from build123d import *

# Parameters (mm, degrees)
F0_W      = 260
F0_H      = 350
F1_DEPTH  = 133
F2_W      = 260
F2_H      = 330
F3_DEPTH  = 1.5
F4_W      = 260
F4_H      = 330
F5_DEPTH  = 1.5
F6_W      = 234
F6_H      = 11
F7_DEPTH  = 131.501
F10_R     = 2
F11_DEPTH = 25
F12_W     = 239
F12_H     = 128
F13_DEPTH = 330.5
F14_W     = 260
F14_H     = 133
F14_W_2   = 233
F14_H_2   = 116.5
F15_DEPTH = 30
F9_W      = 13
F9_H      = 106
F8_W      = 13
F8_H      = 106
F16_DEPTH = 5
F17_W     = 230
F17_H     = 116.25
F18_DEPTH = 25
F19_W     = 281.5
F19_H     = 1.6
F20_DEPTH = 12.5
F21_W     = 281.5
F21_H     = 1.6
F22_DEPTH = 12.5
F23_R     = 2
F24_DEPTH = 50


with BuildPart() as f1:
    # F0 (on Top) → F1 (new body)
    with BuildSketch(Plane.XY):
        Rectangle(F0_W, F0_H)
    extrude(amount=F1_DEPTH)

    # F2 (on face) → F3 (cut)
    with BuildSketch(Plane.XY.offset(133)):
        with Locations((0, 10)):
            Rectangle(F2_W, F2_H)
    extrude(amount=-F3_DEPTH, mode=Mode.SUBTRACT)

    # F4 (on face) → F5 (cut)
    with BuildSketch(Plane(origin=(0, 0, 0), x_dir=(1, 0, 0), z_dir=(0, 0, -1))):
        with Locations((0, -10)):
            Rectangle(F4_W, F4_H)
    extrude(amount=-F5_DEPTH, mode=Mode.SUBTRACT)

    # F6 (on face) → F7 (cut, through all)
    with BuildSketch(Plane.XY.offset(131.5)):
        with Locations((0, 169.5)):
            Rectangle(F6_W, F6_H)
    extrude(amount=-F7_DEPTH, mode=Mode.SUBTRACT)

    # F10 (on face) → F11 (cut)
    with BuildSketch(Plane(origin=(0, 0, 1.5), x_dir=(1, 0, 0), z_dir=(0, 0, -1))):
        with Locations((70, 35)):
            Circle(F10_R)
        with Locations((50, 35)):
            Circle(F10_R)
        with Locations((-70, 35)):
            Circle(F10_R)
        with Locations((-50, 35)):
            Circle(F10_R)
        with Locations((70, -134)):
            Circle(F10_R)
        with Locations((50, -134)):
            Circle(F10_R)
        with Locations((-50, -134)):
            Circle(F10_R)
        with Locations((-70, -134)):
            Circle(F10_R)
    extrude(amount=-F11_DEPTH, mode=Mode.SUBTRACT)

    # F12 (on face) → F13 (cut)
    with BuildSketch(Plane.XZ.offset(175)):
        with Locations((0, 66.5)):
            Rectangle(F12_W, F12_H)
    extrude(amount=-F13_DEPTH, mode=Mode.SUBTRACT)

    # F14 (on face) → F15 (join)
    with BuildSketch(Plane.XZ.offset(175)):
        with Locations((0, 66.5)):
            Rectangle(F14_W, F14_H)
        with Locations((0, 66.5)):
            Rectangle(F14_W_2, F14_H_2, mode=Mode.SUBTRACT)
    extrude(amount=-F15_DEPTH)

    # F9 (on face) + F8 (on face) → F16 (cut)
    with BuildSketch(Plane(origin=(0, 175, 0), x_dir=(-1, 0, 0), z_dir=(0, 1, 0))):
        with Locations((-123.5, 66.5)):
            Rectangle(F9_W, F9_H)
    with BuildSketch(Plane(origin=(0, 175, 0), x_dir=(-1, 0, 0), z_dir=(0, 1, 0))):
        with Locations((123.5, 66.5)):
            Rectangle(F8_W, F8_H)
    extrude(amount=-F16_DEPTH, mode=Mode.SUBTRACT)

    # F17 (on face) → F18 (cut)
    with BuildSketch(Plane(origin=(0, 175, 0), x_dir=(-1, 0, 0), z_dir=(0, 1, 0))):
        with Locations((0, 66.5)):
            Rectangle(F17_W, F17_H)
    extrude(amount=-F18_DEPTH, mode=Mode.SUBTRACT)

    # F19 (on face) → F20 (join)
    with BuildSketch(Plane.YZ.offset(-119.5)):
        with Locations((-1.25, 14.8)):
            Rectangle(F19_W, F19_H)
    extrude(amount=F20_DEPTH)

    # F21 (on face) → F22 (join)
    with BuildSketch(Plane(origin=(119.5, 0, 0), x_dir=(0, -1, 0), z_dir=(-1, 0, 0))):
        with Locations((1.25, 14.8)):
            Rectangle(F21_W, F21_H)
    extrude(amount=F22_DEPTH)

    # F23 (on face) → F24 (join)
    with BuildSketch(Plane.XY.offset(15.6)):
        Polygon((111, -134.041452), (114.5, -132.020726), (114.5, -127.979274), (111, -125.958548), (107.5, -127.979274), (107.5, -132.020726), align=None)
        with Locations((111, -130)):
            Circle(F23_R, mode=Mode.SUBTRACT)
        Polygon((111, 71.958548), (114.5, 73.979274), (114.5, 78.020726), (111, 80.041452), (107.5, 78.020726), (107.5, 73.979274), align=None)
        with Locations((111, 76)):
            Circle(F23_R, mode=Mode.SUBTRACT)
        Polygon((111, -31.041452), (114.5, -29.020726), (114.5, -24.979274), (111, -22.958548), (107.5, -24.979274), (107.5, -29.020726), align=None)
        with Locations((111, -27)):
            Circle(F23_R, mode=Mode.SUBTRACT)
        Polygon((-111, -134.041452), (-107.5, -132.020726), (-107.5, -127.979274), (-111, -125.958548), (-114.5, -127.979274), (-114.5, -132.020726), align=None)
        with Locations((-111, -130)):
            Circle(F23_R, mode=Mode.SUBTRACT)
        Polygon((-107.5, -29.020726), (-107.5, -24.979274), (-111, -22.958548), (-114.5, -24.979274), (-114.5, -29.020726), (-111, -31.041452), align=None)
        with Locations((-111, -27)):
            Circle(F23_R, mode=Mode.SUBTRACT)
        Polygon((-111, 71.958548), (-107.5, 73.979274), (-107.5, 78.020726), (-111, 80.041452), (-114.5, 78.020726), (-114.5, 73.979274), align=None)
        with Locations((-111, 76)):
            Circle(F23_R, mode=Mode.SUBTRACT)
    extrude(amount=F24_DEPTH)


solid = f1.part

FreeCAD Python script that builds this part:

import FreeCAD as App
import Part
import Sketcher
Q = App.Units.Quantity


def add_polygon(sketch, points):
    """Adds a closed chain of lines whose ends are joined by coincident constraints."""
    first, n = sketch.GeometryCount, len(points)
    for a, b in zip(points, points[1:] + points[:1]):
        sketch.addGeometry(Part.LineSegment(App.Vector(*a, 0), App.Vector(*b, 0)), False)
    for i in range(n):
        sketch.addConstraint(Sketcher.Constraint("Coincident", first + i, 2, first + (i + 1) % n, 1))

doc = App.newDocument("Part")
body = doc.addObject("PartDesign::Body", "Body")

sketch1 = body.newObject("Sketcher::SketchObject", "Sketch")
sketch1.AttachmentSupport = (doc.getObject("XY_Plane"), [""])
sketch1.MapMode = "FlatFace"
add_polygon(sketch1, [(-130, 175), (-130, -175), (130, -175), (130, 175)])
sketch1.addConstraint([
    Sketcher.Constraint("Vertical", 0),
    Sketcher.Constraint("Horizontal", 1),
    Sketcher.Constraint("Vertical", 2),
    Sketcher.Constraint("Horizontal", 3),
    Sketcher.Constraint("Symmetric", 0, 2, 2, 2, -1, 1),
    Sketcher.Constraint("DistanceX", 1, 1, 1, 2, Q("260 mm")),
    Sketcher.Constraint("DistanceY", 0, 2, 0, 1, Q("350 mm")),
])
pad1 = body.newObject("PartDesign::Pad", "Pad")
pad1.Profile = sketch1
pad1.Length = 133

sketch2 = body.newObject("Sketcher::SketchObject", "Sketch001")
sketch2.AttachmentSupport = (doc.getObject("XY_Plane"), [""])
sketch2.MapMode = "FlatFace"
sketch2.AttachmentOffset = App.Placement(App.Vector(0, 0, 133), App.Rotation())
add_polygon(sketch2, [(-130, 175), (-130, -155), (130, -155), (130, 175)])
sketch2.addConstraint([
    Sketcher.Constraint("Vertical", 0),
    Sketcher.Constraint("Horizontal", 1),
    Sketcher.Constraint("Vertical", 2),
    Sketcher.Constraint("Horizontal", 3),
    Sketcher.Constraint("DistanceX", 1, 1, 1, 2, Q("260 mm")),
    Sketcher.Constraint("DistanceY", 0, 2, 0, 1, Q("330 mm")),
    Sketcher.Constraint("DistanceX", 0, 2, -1, 1, Q("130 mm")),
    Sketcher.Constraint("DistanceY", 0, 2, -1, 1, Q("155 mm")),
])
pocket1 = body.newObject("PartDesign::Pocket", "Pocket")
pocket1.Profile = sketch2
pocket1.Length = 1.5

sketch3 = body.newObject("Sketcher::SketchObject", "Sketch002")
sketch3.AttachmentSupport = (doc.getObject("XY_Plane"), [""])
sketch3.MapMode = "FlatFace"
add_polygon(sketch3, [(-130, -155), (-130, 175), (130, 175), (130, -155)])
sketch3.addConstraint([
    Sketcher.Constraint("Vertical", 0),
    Sketcher.Constraint("Horizontal", 1),
    Sketcher.Constraint("Vertical", 2),
    Sketcher.Constraint("Horizontal", 3),
    Sketcher.Constraint("DistanceX", 1, 1, 1, 2, Q("260 mm")),
    Sketcher.Constraint("DistanceY", 0, 1, 0, 2, Q("330 mm")),
    Sketcher.Constraint("DistanceX", 0, 2, -1, 1, Q("130 mm")),
    Sketcher.Constraint("DistanceY", -1, 1, 0, 2, Q("175 mm")),
])
pocket2 = body.newObject("PartDesign::Pocket", "Pocket001")
pocket2.Profile = sketch3
pocket2.Length = 1.5
pocket2.Reversed = True

sketch4 = body.newObject("Sketcher::SketchObject", "Sketch003")
sketch4.AttachmentSupport = (doc.getObject("XY_Plane"), [""])
sketch4.MapMode = "FlatFace"
sketch4.AttachmentOffset = App.Placement(App.Vector(0, 0, 131.5), App.Rotation())
add_polygon(sketch4, [(-117, 175), (-117, 164), (117, 164), (117, 175)])
sketch4.addConstraint([
    Sketcher.Constraint("Vertical", 0),
    Sketcher.Constraint("Horizontal", 1),
    Sketcher.Constraint("Vertical", 2),
    Sketcher.Constraint("Horizontal", 3),
    Sketcher.Constraint("DistanceX", 1, 1, 1, 2, Q("234 mm")),
    Sketcher.Constraint("DistanceY", 0, 2, 0, 1, Q("11 mm")),
    Sketcher.Constraint("DistanceX", 0, 2, -1, 1, Q("117 mm")),
    Sketcher.Constraint("DistanceY", -1, 1, 0, 2, Q("164 mm")),
])
pocket3 = body.newObject("PartDesign::Pocket", "Pocket002")
pocket3.Profile = sketch4
pocket3.Type = "ThroughAll"

sketch5 = body.newObject("Sketcher::SketchObject", "Sketch004")
sketch5.AttachmentSupport = (doc.getObject("XY_Plane"), [""])
sketch5.MapMode = "FlatFace"
sketch5.AttachmentOffset = App.Placement(App.Vector(0, 0, 1.5), App.Rotation())
sketch5.addGeometry([
    Part.Circle(App.Vector(70, -35, 0), App.Vector(0, 0, 1), 2),
    Part.Circle(App.Vector(50, -35, 0), App.Vector(0, 0, 1), 2),
    Part.Circle(App.Vector(-70, -35, 0), App.Vector(0, 0, 1), 2),
    Part.Circle(App.Vector(-50, -35, 0), App.Vector(0, 0, 1), 2),
    Part.Circle(App.Vector(70, 134, 0), App.Vector(0, 0, 1), 2),
    Part.Circle(App.Vector(50, 134, 0), App.Vector(0, 0, 1), 2),
    Part.Circle(App.Vector(-50, 134, 0), App.Vector(0, 0, 1), 2),
    Part.Circle(App.Vector(-70, 134, 0), App.Vector(0, 0, 1), 2),
], False)
sketch5.addConstraint([
    Sketcher.Constraint("Equal", 0, 1),
    Sketcher.Constraint("Equal", 1, 2),
    Sketcher.Constraint("Equal", 2, 3),
    Sketcher.Constraint("Equal", 3, 4),
    Sketcher.Constraint("Equal", 4, 5),
    Sketcher.Constraint("Equal", 5, 6),
    Sketcher.Constraint("Equal", 6, 7),
    Sketcher.Constraint("Symmetric", 0, 3, 2, 3, -2),
    Sketcher.Constraint("Symmetric", 1, 3, 3, 3, -2),
    Sketcher.Constraint("Symmetric", 5, 3, 6, 3, -2),
    Sketcher.Constraint("Symmetric", 4, 3, 7, 3, -2),
    Sketcher.Constraint("Horizontal", 0, 3, 1, 3),
    Sketcher.Constraint("Horizontal", 4, 3, 5, 3),
    Sketcher.Constraint("Vertical", 0, 3, 4, 3),
    Sketcher.Constraint("Vertical", 1, 3, 5, 3),
    Sketcher.Constraint("Diameter", 0, Q("4 mm")),
    Sketcher.Constraint("DistanceX", -1, 1, 0, 3, Q("70 mm")),
    Sketcher.Constraint("DistanceY", 0, 3, -1, 1, Q("35 mm")),
    Sketcher.Constraint("DistanceX", -1, 1, 1, 3, Q("50 mm")),
    Sketcher.Constraint("DistanceY", -1, 1, 4, 3, Q("134 mm")),
])
pocket4 = body.newObject("PartDesign::Pocket", "Pocket003")
pocket4.Profile = sketch5
pocket4.Length = 25
pocket4.Reversed = True

sketch6 = body.newObject("Sketcher::SketchObject", "Sketch005")
sketch6.AttachmentSupport = (doc.getObject("XZ_Plane"), [""])
sketch6.MapMode = "FlatFace"
sketch6.AttachmentOffset = App.Placement(App.Vector(0, 0, 175), App.Rotation())
add_polygon(sketch6, [(-119.5, 130.5), (-119.5, 2.5), (119.5, 2.5), (119.5, 130.5)])
sketch6.addConstraint([
    Sketcher.Constraint("Vertical", 0),
    Sketcher.Constraint("Horizontal", 1),
    Sketcher.Constraint("Vertical", 2),
    Sketcher.Constraint("Horizontal", 3),
    Sketcher.Constraint("DistanceX", 1, 1, 1, 2, Q("239 mm")),
    Sketcher.Constraint("DistanceY", 0, 2, 0, 1, Q("128 mm")),
    Sketcher.Constraint("DistanceX", 0, 2, -1, 1, Q("119.5 mm")),
    Sketcher.Constraint("DistanceY", -1, 1, 0, 2, Q("2.5 mm")),
])
pocket5 = body.newObject("PartDesign::Pocket", "Pocket004")
pocket5.Profile = sketch6
pocket5.Length = 330.5

sketch7 = body.newObject("Sketcher::SketchObject", "Sketch006")
sketch7.AttachmentSupport = (doc.getObject("XZ_Plane"), [""])
sketch7.MapMode = "FlatFace"
sketch7.AttachmentOffset = App.Placement(App.Vector(0, 0, 175), App.Rotation())
add_polygon(sketch7, [(-130, 133), (-130, 0), (130, 0), (130, 133)])
add_polygon(sketch7, [(116.5, 8.25), (-116.5, 8.25), (-116.5, 124.75), (116.5, 124.75)])
sketch7.addConstraint([
    Sketcher.Constraint("Vertical", 0),
    Sketcher.Constraint("Horizontal", 1),
    Sketcher.Constraint("Vertical", 2),
    Sketcher.Constraint("Horizontal", 3),
    Sketcher.Constraint("Horizontal", 4),
    Sketcher.Constraint("Vertical", 5),
    Sketcher.Constraint("Horizontal", 6),
    Sketcher.Constraint("Vertical", 7),
    Sketcher.Constraint("Symmetric", 0, 2, 1, 2, -1, 1),
    Sketcher.Constraint("DistanceX", 1, 1, 1, 2, Q("260 mm")),
    Sketcher.Constraint("DistanceX", 4, 2, 4, 1, Q("233 mm")),
    Sketcher.Constraint("DistanceY", 0, 2, 0, 1, Q("133 mm")),
    Sketcher.Constraint("DistanceY", 5, 1, 5, 2, Q("116.5 mm")),
    Sketcher.Constraint("DistanceX", 4, 2, -1, 1, Q("116.5 mm")),
    Sketcher.Constraint("DistanceY", -1, 1, 4, 2, Q("8.25 mm")),
])
pad2 = body.newObject("PartDesign::Pad", "Pad001")
pad2.Profile = sketch7
pad2.Length = 30
pad2.Reversed = True

sketch8 = body.newObject("Sketcher::SketchObject", "Sketch007")
sketch8.AttachmentSupport = (doc.getObject("XZ_Plane"), [""])
sketch8.MapMode = "FlatFace"
sketch8.AttachmentOffset = App.Placement(App.Vector(0, 0, -175), App.Rotation())
add_polygon(sketch8, [(130, 119.5), (130, 13.5), (117, 13.5), (117, 119.5)])
add_polygon(sketch8, [(-117, 119.5), (-117, 13.5), (-130, 13.5), (-130, 119.5)])
sketch8.addConstraint([
    Sketcher.Constraint("Vertical", 0),
    Sketcher.Constraint("Horizontal", 1),
    Sketcher.Constraint("Vertical", 2),
    Sketcher.Constraint("Horizontal", 3),
    Sketcher.Constraint("Vertical", 4),
    Sketcher.Constraint("Horizontal", 5),
    Sketcher.Constraint("Vertical", 6),
    Sketcher.Constraint("Horizontal", 7),
    Sketcher.Constraint("Symmetric", 1, 2, 4, 2, -2),
    Sketcher.Constraint("Symmetric", 3, 2, 6, 2, -2),
    Sketcher.Constraint("DistanceX", 1, 2, 1, 1, Q("13 mm")),
    Sketcher.Constraint("DistanceY", 0, 2, 0, 1, Q("106 mm")),
    Sketcher.Constraint("DistanceX", -1, 1, 0, 2, Q("130 mm")),
    Sketcher.Constraint("DistanceY", -1, 1, 0, 2, Q("13.5 mm")),
])
pocket6 = body.newObject("PartDesign::Pocket", "Pocket005")
pocket6.Profile = sketch8
pocket6.Length = 5
pocket6.Reversed = True

sketch9 = body.newObject("Sketcher::SketchObject", "Sketch008")
sketch9.AttachmentSupport = (doc.getObject("XZ_Plane"), [""])
sketch9.MapMode = "FlatFace"
sketch9.AttachmentOffset = App.Placement(App.Vector(0, 0, -175), App.Rotation())
add_polygon(sketch9, [(115, 124.625), (115, 8.375), (-115, 8.375), (-115, 124.625)])
sketch9.addConstraint([
    Sketcher.Constraint("Vertical", 0),
    Sketcher.Constraint("Horizontal", 1),
    Sketcher.Constraint("Vertical", 2),
    Sketcher.Constraint("Horizontal", 3),
    Sketcher.Constraint("DistanceX", 1, 2, 1, 1, Q("230 mm")),
    Sketcher.Constraint("DistanceX", -1, 1, 0, 2, Q("115 mm")),
    Sketcher.Constraint("DistanceY", 0, 2, 0, 1, Q("116.25 mm")),
    Sketcher.Constraint("DistanceY", -1, 1, 0, 2, Q("8.375 mm")),
])
pocket7 = body.newObject("PartDesign::Pocket", "Pocket006")
pocket7.Profile = sketch9
pocket7.Length = 25
pocket7.Reversed = True

sketch10 = body.newObject("Sketcher::SketchObject", "Sketch009")
sketch10.AttachmentSupport = (doc.getObject("YZ_Plane"), [""])
sketch10.MapMode = "FlatFace"
sketch10.AttachmentOffset = App.Placement(App.Vector(0, 0, -119.5), App.Rotation())
add_polygon(sketch10, [(-142, 15.6), (-142, 14), (139.5, 14), (139.5, 15.6)])
sketch10.addConstraint([
    Sketcher.Constraint("Vertical", 0),
    Sketcher.Constraint("Horizontal", 1),
    Sketcher.Constraint("Vertical", 2),
    Sketcher.Constraint("Horizontal", 3),
    Sketcher.Constraint("DistanceX", 1, 1, 1, 2, Q("281.5 mm")),
    Sketcher.Constraint("DistanceY", 0, 2, 0, 1, Q("1.6 mm")),
    Sketcher.Constraint("DistanceX", 0, 2, -1, 1, Q("142 mm")),
    Sketcher.Constraint("DistanceY", -1, 1, 0, 2, Q("14 mm")),
])
pad3 = body.newObject("PartDesign::Pad", "Pad002")
pad3.Profile = sketch10
pad3.Length = 12.5

sketch11 = body.newObject("Sketcher::SketchObject", "Sketch010")
sketch11.AttachmentSupport = (doc.getObject("YZ_Plane"), [""])
sketch11.MapMode = "FlatFace"
sketch11.AttachmentOffset = App.Placement(App.Vector(0, 0, 119.5), App.Rotation())
add_polygon(sketch11, [(139.5, 15.6), (139.5, 14), (-142, 14), (-142, 15.6)])
sketch11.addConstraint([
    Sketcher.Constraint("Vertical", 0),
    Sketcher.Constraint("Horizontal", 1),
    Sketcher.Constraint("Vertical", 2),
    Sketcher.Constraint("Horizontal", 3),
    Sketcher.Constraint("DistanceX", 1, 2, 1, 1, Q("281.5 mm")),
    Sketcher.Constraint("DistanceY", 0, 2, 0, 1, Q("1.6 mm")),
    Sketcher.Constraint("DistanceY", -1, 1, 0, 2, Q("14 mm")),
    Sketcher.Constraint("DistanceX", 1, 2, -1, 1, Q("142 mm")),
])
pad4 = body.newObject("PartDesign::Pad", "Pad003")
pad4.Profile = sketch11
pad4.Length = 12.5
pad4.Reversed = True

sketch12 = body.newObject("Sketcher::SketchObject", "Sketch011")
sketch12.AttachmentSupport = (doc.getObject("XY_Plane"), [""])
sketch12.MapMode = "FlatFace"
sketch12.AttachmentOffset = App.Placement(App.Vector(0, 0, 15.6), App.Rotation())
add_polygon(sketch12, [(111, -134.041452), (114.5, -132.020726), (114.5, -127.979274), (111, -125.958548), (107.5, -127.979274), (107.5, -132.020726)])
sketch12.addGeometry(Part.Circle(App.Vector(111, -130, 0), App.Vector(0, 0, 1), 2), False)
add_polygon(sketch12, [(111, 71.958548), (114.5, 73.979274), (114.5, 78.020726), (111, 80.041452), (107.5, 78.020726), (107.5, 73.979274)])
sketch12.addGeometry(Part.Circle(App.Vector(111, 76, 0), App.Vector(0, 0, 1), 2), False)
add_polygon(sketch12, [(111, -31.041452), (114.5, -29.020726), (114.5, -24.979274), (111, -22.958548), (107.5, -24.979274), (107.5, -29.020726)])
sketch12.addGeometry(Part.Circle(App.Vector(111, -27, 0), App.Vector(0, 0, 1), 2), False)
add_polygon(sketch12, [(-111, -134.041452), (-107.5, -132.020726), (-107.5, -127.979274), (-111, -125.958548), (-114.5, -127.979274), (-114.5, -132.020726)])
sketch12.addGeometry(Part.Circle(App.Vector(-111, -130, 0), App.Vector(0, 0, 1), 2), False)
add_polygon(sketch12, [(-107.5, -29.020726), (-107.5, -24.979274), (-111, -22.958548), (-114.5, -24.979274), (-114.5, -29.020726), (-111, -31.041452)])
sketch12.addGeometry(Part.Circle(App.Vector(-111, -27, 0), App.Vector(0, 0, 1), 2), False)
add_polygon(sketch12, [(-111, 71.958548), (-107.5, 73.979274), (-107.5, 78.020726), (-111, 80.041452), (-114.5, 78.020726), (-114.5, 73.979274)])
sketch12.addGeometry(Part.Circle(App.Vector(-111, 76, 0), App.Vector(0, 0, 1), 2), False)
sketch12.addConstraint([
    Sketcher.Constraint("Vertical", 1),
    Sketcher.Constraint("Vertical", 4),
    Sketcher.Constraint("Vertical", 8),
    Sketcher.Constraint("Vertical", 11),
    Sketcher.Constraint("Vertical", 15),
    Sketcher.Constraint("Vertical", 18),
    Sketcher.Constraint("Vertical", 22),
    Sketcher.Constraint("Vertical", 25),
    Sketcher.Constraint("Vertical", 28),
    Sketcher.Constraint("Vertical", 31),
    Sketcher.Constraint("Vertical", 36),
    Sketcher.Constraint("Vertical", 39),
    Sketcher.Constraint("Equal", 6, 13),
    Sketcher.Constraint("Equal", 13, 20),
    Sketcher.Constraint("Equal", 20, 27),
    Sketcher.Constraint("Equal", 27, 34),
    Sketcher.Constraint("Equal", 34, 41),
    Sketcher.Constraint("Symmetric", 6, 3, 27, 3, -2),
    Sketcher.Constraint("Symmetric", 20, 3, 34, 3, -2),
    Sketcher.Constraint("Symmetric", 13, 3, 41, 3, -2),
    Sketcher.Constraint("Symmetric", 4, 2, 21, 2, -2),
    Sketcher.Constraint("Symmetric", 2, 2, 23, 2, -2),
    Sketcher.Constraint("Symmetric", 1, 2, 24, 2, -2),
    Sketcher.Constraint("Symmetric", 5, 2, 26, 2, -2),
    Sketcher.Constraint("Symmetric", 17, 2, 28, 2, -2),
    Sketcher.Constraint("Symmetric", 16, 2, 29, 2, -2),
    Sketcher.Constraint("Symmetric", 15, 2, 30, 2, -2),
    Sketcher.Constraint("Symmetric", 19, 2, 32, 2, -2),
    Sketcher.Constraint("Symmetric", 11, 2, 35, 2, -2),
    Sketcher.Constraint("Symmetric", 9, 2, 37, 2, -2),
    Sketcher.Constraint("Symmetric", 8, 2, 38, 2, -2),
    Sketcher.Constraint("Symmetric", 12, 2, 40, 2, -2),
    Sketcher.Constraint("Parallel", 0, 3),
    Sketcher.Constraint("Parallel", 2, 5),
    Sketcher.Constraint("Parallel", 3, 7),
    Sketcher.Constraint("Parallel", 5, 9),
    Sketcher.Constraint("Parallel", 7, 10),
    Sketcher.Constraint("Parallel", 9, 12),
    Sketcher.Constraint("Parallel", 10, 14),
    Sketcher.Constraint("Parallel", 12, 16),
    Sketcher.Constraint("Parallel", 14, 17),
    Sketcher.Constraint("Parallel", 16, 19),
    Sketcher.Constraint("Parallel", 17, 21),
    Sketcher.Constraint("Parallel", 19, 23),
    Sketcher.Constraint("Parallel", 23, 26),
    Sketcher.Constraint("Parallel", 29, 32),
    Sketcher.Constraint("Parallel", 30, 33),
    Sketcher.Constraint("Parallel", 32, 37),
    Sketcher.Constraint("Parallel", 37, 40),
    Sketcher.Constraint("Horizontal", 1, 2, 3, 2),
    Sketcher.Constraint("Horizontal", 0, 2, 4, 2),
    Sketcher.Constraint("Horizontal", 8, 2, 10, 2),
    Sketcher.Constraint("Horizontal", 7, 2, 11, 2),
    Sketcher.Constraint("Horizontal", 15, 2, 17, 2),
    Sketcher.Constraint("Horizontal", 14, 2, 18, 2),
    Sketcher.Constraint("Vertical", 6, 3, 13, 3),
    Sketcher.Constraint("Vertical", 13, 3, 20, 3),
    Sketcher.Constraint("Vertical", 20, 3, 2, 2),
    Sketcher.Constraint("Vertical", 1, 2, 7, 2),
    Sketcher.Constraint("Vertical", 5, 2, 9, 2),
    Sketcher.Constraint("Vertical", 8, 2, 14, 2),
    Sketcher.Constraint("Vertical", 12, 2, 16, 2),
    Sketcher.Constraint("Equal", 4, 8),
    Sketcher.Constraint("Equal", 11, 15),
    Sketcher.Constraint("Diameter", 6, Q("4 mm")),
    Sketcher.Constraint("Angle", 0, Q("30.000001 deg")),
    Sketcher.Constraint("DistanceX", -1, 1, 6, 3, Q("111 mm")),
    Sketcher.Constraint("DistanceY", 6, 3, -1, 1, Q("130 mm")),
    Sketcher.Constraint("DistanceY", -1, 1, 13, 3, Q("76 mm")),
    Sketcher.Constraint("DistanceY", 20, 3, -1, 1, Q("27 mm")),
    Sketcher.Constraint("DistanceX", 3, 2, 1, 2, Q("7 mm")),
    Sketcher.Constraint("DistanceY", 1, 2, 8, 2, Q("206 mm")),
    Sketcher.Constraint("DistanceY", 22, 2, 28, 2, Q("103 mm")),
    Sketcher.Constraint("DistanceY", 1, 1, 1, 2, Q("4.041452 mm")),
    Sketcher.Constraint("DistanceY", 5, 2, -1, 1, Q("134.041452 mm")),
])
pad5 = body.newObject("PartDesign::Pad", "Pad004")
pad5.Profile = sketch12
pad5.Length = 50

doc.recompute()
